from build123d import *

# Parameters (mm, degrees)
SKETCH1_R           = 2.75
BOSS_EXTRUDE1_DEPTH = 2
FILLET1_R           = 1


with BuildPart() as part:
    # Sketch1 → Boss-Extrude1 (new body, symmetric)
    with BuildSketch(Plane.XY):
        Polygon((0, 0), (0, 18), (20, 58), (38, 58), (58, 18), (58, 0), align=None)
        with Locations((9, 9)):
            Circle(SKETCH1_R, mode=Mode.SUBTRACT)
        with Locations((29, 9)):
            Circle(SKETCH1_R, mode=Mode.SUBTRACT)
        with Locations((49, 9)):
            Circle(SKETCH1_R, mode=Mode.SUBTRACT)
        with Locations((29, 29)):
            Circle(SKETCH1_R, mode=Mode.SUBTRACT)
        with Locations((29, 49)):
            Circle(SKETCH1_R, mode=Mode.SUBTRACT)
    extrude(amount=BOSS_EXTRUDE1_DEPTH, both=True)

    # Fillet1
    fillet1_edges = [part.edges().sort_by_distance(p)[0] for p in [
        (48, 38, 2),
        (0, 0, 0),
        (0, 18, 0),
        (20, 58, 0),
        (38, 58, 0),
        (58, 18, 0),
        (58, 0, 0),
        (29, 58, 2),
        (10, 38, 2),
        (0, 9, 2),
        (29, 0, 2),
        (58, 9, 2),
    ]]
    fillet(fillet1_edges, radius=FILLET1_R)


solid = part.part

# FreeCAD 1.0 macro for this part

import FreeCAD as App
import Part
import Sketcher

V = App.Vector


def edges_at(feature, points):
    """Names of the edges that pass closest to the given points."""
    edges = feature.Shape.Edges
    near = lambda p: min(range(len(edges)), key=lambda i: edges[i].distToShape(Part.Vertex(*p))[0])
    return sorted({f"Edge{near(p) + 1}" for p in points})


def add_polygon(sketch, points):
    """Adds a closed chain of lines whose ends are joined by coincident constraints."""
    first, n = sketch.GeometryCount, len(points)
    for a, b in zip(points, points[1:] + points[:1]):
        sketch.addGeometry(Part.LineSegment(App.Vector(*a, 0), App.Vector(*b, 0)), False)
    for i in range(n):
        sketch.addConstraint(Sketcher.Constraint("Coincident", first + i, 2, first + (i + 1) % n, 1))

doc = App.newDocument("Part")
body = doc.addObject("PartDesign::Body", "Body")

sketch1 = doc.addObject("Sketcher::SketchObject", "Sketch")
body.addObject(sketch1)
sketch1.AttachmentSupport = (doc.XY_Plane, [""])
sketch1.MapMode = "FlatFace"
add_polygon(sketch1, [(0, 18), (0, 0), (58, 0), (58, 18), (38, 58), (20, 58)])
sketch1.addGeometry(Part.Circle(V(49, 9, 0), V(0, 0, 1), 2.8), False)
sketch1.addGeometry(Part.Circle(V(29, 9, 0), V(0, 0, 1), 2.8), False)
sketch1.addGeometry(Part.Circle(V(9, 9, 0), V(0, 0, 1), 2.8), False)
sketch1.addGeometry(Part.Circle(V(29, 29, 0), V(0, 0, 1), 2.8), False)
sketch1.addGeometry(Part.Circle(V(29, 49, 0), V(0, 0, 1), 2.8), False)
sketch1.addConstraint([
    Sketcher.Constraint("Vertical", 0),
    Sketcher.Constraint("Horizontal", 1),
    Sketcher.Constraint("Vertical", 2),
    Sketcher.Constraint("Horizontal", 4),
    Sketcher.Constraint("Coincident", 0, 2, -1, 1),
    Sketcher.Constraint("Equal", 6, 7),
    Sketcher.Constraint("Equal", 7, 8),
    Sketcher.Constraint("Equal", 8, 9),
    Sketcher.Constraint("Equal", 9, 10),
    Sketcher.Constraint("Horizontal", 6, 3, 7, 3),
    Sketcher.Constraint("Horizontal", 7, 3, 8, 3),
    Sketcher.Constraint("Horizontal", 2, 2, 5, 2),
    Sketcher.Constraint("Vertical", 7, 3, 9, 3),
    Sketcher.Constraint("Vertical", 9, 3, 10, 3),
    Sketcher.Constraint("Equal", 4, 0),
    Sketcher.Constraint("Equal", 3, 5),
    Sketcher.Constraint("Diameter", 6, 5.5),
    Sketcher.Constraint("DistanceX", 1, 1, 1, 2, 58.0),
    Sketcher.Constraint("DistanceX", 4, 2, 4, 1, 18.0),
    Sketcher.Constraint("DistanceX", -1, 1, 6, 3, 49.0),
    Sketcher.Constraint("DistanceY", -1, 1, 6, 3, 9.0),
    Sketcher.Constraint("DistanceX", -1, 1, 7, 3, 29.0),
    Sketcher.Constraint("DistanceX", -1, 1, 8, 3, 9.0),
    Sketcher.Constraint("DistanceY", -1, 1, 9, 3, 29.0),
    Sketcher.Constraint("DistanceY", -1, 1, 10, 3, 49.0),
    Sketcher.Constraint("DistanceY", -1, 1, 3, 2, 58.0),
])
pad1 = doc.addObject("PartDesign::Pad", "Pad")
body.addObject(pad1)
pad1.Profile = sketch1
pad1.Length = 4
pad1.Midplane = True
doc.recompute()

fillet = doc.addObject("PartDesign::Fillet", "Fillet")
body.addObject(fillet)
fillet.Base = (pad1, edges_at(pad1, [
    (48, 38, 2),
    (0, 0, 0),
    (0, 18, 0),
    (20, 58, 0),
    (38, 58, 0),
    (58, 18, 0),
    (58, 0, 0),
    (29, 58, 2),
    (10, 38, 2),
    (0, 9, 2),
    (29, 0, 2),
    (58, 9, 2),
]))
fillet.Radius = 1

doc.recompute()
